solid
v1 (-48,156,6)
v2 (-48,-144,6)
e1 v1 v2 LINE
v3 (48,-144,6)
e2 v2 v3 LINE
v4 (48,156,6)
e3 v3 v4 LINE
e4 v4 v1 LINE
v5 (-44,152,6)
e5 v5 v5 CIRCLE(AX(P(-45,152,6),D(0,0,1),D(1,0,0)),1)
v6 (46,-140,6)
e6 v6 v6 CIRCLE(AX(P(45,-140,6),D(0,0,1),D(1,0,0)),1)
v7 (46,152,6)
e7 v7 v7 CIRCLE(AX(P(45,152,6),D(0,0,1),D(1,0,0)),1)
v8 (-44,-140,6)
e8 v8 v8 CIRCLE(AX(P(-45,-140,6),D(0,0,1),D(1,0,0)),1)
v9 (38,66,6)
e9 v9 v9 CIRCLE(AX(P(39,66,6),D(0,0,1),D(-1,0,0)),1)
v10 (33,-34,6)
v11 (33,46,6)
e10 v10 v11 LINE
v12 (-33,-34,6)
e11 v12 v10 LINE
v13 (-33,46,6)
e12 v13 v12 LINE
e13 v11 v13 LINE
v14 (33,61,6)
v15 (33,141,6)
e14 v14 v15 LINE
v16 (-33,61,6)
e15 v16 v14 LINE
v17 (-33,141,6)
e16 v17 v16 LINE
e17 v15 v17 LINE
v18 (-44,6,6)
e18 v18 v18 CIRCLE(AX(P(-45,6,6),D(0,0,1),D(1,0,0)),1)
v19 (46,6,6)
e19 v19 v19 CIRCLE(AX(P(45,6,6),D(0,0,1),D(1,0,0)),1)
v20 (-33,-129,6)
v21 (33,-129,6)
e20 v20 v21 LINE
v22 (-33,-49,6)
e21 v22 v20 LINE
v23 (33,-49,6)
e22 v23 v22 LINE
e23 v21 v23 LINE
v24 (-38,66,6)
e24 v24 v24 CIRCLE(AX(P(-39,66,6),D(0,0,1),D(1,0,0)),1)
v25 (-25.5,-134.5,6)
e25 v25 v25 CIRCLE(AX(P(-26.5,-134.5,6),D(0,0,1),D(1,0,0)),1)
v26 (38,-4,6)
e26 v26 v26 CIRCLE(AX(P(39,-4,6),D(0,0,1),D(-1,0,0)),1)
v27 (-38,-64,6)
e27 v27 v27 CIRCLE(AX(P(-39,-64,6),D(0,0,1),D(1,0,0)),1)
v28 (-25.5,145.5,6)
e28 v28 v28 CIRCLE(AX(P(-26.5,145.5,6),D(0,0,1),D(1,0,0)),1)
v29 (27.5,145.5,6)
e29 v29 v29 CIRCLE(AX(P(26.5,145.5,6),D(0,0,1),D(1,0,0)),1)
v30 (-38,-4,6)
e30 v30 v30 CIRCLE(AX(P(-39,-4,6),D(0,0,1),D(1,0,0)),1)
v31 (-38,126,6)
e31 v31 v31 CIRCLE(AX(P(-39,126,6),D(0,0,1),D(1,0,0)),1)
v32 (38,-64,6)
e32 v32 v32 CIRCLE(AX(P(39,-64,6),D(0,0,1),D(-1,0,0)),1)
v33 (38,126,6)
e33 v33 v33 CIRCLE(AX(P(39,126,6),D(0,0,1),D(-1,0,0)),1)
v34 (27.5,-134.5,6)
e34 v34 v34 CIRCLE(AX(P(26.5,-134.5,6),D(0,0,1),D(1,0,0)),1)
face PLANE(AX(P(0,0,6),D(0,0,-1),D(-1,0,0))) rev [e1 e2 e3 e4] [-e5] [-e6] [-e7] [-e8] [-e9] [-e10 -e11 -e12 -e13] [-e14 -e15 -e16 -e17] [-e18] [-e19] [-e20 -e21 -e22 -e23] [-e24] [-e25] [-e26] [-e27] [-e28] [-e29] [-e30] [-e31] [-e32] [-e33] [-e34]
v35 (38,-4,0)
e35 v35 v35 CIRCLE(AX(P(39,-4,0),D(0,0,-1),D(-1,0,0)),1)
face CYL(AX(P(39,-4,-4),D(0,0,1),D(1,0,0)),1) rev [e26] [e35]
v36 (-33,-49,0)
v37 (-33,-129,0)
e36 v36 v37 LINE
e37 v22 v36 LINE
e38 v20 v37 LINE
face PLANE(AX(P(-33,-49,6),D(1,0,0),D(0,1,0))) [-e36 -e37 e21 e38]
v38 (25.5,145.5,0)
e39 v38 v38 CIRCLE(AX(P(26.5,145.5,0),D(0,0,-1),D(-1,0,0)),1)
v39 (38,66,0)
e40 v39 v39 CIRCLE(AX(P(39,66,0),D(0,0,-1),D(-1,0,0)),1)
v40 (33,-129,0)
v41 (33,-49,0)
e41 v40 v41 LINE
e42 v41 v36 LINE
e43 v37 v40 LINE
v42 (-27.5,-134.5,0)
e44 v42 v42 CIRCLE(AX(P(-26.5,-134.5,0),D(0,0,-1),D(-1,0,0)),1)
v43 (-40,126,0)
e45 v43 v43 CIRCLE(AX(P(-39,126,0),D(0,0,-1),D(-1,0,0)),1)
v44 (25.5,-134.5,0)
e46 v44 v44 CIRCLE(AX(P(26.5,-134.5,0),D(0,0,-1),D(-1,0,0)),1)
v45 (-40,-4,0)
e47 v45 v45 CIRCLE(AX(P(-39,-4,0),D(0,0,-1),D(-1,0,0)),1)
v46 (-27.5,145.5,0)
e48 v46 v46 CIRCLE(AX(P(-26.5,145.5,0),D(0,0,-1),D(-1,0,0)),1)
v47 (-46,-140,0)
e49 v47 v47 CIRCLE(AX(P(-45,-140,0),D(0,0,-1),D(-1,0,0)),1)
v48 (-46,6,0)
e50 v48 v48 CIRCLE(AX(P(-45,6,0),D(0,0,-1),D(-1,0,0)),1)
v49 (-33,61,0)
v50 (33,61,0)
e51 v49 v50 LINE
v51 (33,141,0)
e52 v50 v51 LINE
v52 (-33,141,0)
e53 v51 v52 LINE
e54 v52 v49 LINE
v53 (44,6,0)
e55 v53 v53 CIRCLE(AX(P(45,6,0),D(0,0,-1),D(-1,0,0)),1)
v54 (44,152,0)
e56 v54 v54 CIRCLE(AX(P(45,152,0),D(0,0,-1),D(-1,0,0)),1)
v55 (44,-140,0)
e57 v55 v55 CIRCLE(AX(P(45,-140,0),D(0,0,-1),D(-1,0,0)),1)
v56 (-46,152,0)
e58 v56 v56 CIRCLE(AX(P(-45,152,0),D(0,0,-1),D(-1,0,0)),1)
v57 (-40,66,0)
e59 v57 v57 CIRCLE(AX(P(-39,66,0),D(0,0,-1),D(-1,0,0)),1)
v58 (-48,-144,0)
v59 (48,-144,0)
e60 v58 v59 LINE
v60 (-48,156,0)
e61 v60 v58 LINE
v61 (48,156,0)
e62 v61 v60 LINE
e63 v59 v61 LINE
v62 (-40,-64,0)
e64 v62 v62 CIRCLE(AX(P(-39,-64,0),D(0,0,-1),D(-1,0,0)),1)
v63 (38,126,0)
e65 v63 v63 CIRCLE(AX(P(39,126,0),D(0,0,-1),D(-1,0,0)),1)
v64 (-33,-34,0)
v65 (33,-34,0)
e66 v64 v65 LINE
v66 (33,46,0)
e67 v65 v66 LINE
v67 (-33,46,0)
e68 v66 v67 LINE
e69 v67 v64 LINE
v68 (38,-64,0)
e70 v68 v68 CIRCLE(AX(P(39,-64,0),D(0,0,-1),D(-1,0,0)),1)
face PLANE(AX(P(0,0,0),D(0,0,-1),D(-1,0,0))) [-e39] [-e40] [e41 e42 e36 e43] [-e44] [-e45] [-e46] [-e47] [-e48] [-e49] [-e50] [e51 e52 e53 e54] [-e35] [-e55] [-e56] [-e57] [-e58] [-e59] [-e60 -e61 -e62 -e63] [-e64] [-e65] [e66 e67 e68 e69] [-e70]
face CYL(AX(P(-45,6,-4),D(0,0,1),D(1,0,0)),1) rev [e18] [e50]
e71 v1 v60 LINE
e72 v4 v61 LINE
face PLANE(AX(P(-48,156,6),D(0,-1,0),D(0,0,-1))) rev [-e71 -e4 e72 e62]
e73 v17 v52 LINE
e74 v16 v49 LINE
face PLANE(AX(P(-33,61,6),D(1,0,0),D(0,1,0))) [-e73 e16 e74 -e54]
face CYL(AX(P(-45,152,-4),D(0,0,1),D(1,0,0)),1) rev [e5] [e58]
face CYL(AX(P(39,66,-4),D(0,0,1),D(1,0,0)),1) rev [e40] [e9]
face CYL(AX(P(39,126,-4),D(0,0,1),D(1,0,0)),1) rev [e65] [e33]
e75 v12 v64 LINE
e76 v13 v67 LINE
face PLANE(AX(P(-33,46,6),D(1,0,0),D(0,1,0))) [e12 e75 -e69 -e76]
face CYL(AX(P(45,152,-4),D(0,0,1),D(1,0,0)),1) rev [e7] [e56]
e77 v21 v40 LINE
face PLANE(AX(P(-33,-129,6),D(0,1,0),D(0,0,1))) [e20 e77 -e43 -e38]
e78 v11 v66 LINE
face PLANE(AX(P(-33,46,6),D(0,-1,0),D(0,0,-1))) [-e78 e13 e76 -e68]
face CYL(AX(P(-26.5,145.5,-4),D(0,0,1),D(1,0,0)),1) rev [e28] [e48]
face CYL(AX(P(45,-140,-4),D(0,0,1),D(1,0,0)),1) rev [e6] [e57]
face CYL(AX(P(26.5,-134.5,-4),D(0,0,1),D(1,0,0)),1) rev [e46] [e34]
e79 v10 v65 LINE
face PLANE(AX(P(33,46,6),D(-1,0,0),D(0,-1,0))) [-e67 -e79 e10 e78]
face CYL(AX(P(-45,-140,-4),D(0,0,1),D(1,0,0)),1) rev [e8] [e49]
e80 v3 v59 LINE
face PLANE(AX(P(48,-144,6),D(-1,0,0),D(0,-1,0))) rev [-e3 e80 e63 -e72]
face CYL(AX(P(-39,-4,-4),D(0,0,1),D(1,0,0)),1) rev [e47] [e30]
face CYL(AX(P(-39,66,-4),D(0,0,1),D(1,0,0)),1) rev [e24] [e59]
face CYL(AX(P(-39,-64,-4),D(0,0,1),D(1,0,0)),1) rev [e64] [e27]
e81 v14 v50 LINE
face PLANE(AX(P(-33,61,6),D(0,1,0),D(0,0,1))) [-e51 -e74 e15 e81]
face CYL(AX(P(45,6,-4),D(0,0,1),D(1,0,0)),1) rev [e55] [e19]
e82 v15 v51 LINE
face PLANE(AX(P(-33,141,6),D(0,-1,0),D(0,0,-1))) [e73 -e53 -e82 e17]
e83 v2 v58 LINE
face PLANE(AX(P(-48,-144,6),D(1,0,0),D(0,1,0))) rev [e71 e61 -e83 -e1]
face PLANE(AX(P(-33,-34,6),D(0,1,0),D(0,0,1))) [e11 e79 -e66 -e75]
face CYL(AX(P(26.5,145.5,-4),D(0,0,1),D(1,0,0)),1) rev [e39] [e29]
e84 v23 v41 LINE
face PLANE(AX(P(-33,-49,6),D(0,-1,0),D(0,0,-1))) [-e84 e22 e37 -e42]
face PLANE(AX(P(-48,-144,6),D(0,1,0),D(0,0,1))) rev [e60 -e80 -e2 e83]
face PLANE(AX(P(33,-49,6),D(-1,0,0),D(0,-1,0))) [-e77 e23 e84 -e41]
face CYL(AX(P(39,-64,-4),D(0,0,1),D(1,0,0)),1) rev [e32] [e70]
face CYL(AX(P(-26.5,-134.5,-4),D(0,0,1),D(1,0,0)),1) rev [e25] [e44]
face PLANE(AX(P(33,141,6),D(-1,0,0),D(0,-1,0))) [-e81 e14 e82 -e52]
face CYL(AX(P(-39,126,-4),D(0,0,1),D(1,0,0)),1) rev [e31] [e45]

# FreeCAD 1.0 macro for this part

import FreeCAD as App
import Part
import Sketcher
from FreeCAD import Vector
Q = App.Units.Quantity

doc = App.newDocument("Part")
params = doc.addObject("Spreadsheet::Sheet", "Params")
for row, (alias, value) in enumerate([
    ("sketch1_width", "96 mm"),
    ("sketch1_width2", "66 mm"),
    ("sketch1_height", "300 mm"),
    ("sketch1_height2", "80 mm"),
    ("pad1_length", "6 mm"),
    ("sketch2_diameter", "2 mm"),
    ("pocket1_length", "10 mm"),
    ("sketch3_diameter", "2 mm"),
    ("pocket2_length", "10 mm"),
    ("sketch4_diameter", "2 mm"),
    ("pocket3_length", "10 mm"),
], start=1):
    params.set(f"A{row}", alias)
    params.set(f"B{row}", "=" + value)
    params.setAlias(f"B{row}", alias)

body = doc.addObject("PartDesign::Body", "Body")

# Sketch on XY plane
sketch1 = body.newObject("Sketcher::SketchObject", "Sketch")
sketch1.AttachmentSupport = (doc.getObject("XY_Plane"), [""])
sketch1.MapMode = "FlatFace"
sketch1.addGeometry([
    Part.LineSegment(Vector(-48, 156, 0), Vector(-48, -144, 0)),  # 0
    Part.LineSegment(Vector(-48, -144, 0), Vector(48, -144, 0)),  # 1
    Part.LineSegment(Vector(48, -144, 0), Vector(48, 156, 0)),  # 2
    Part.LineSegment(Vector(48, 156, 0), Vector(-48, 156, 0)),  # 3
    Part.LineSegment(Vector(33, -129, 0), Vector(-33, -129, 0)),  # 4
    Part.LineSegment(Vector(-33, -129, 0), Vector(-33, -49, 0)),  # 5
    Part.LineSegment(Vector(-33, -49, 0), Vector(33, -49, 0)),  # 6
    Part.LineSegment(Vector(33, -49, 0), Vector(33, -129, 0)),  # 7
    Part.LineSegment(Vector(33, -34, 0), Vector(-33, -34, 0)),  # 8
    Part.LineSegment(Vector(-33, -34, 0), Vector(-33, 46, 0)),  # 9
    Part.LineSegment(Vector(-33, 46, 0), Vector(33, 46, 0)),  # 10
    Part.LineSegment(Vector(33, 46, 0), Vector(33, -34, 0)),  # 11
    Part.LineSegment(Vector(33, 61, 0), Vector(-33, 61, 0)),  # 12
    Part.LineSegment(Vector(-33, 61, 0), Vector(-33, 141, 0)),  # 13
    Part.LineSegment(Vector(-33, 141, 0), Vector(33, 141, 0)),  # 14
    Part.LineSegment(Vector(33, 141, 0), Vector(33, 61, 0)),  # 15
], False)
sketch1.addConstraint([
    Sketcher.Constraint("Coincident", 0, 2, 1, 1),
    Sketcher.Constraint("Coincident", 1, 2, 2, 1),
    Sketcher.Constraint("Coincident", 2, 2, 3, 1),
    Sketcher.Constraint("Coincident", 3, 2, 0, 1),
    Sketcher.Constraint("Coincident", 4, 2, 5, 1),
    Sketcher.Constraint("Coincident", 5, 2, 6, 1),
    Sketcher.Constraint("Coincident", 6, 2, 7, 1),
    Sketcher.Constraint("Coincident", 7, 2, 4, 1),
    Sketcher.Constraint("Coincident", 8, 2, 9, 1),
    Sketcher.Constraint("Coincident", 9, 2, 10, 1),
    Sketcher.Constraint("Coincident", 10, 2, 11, 1),
    Sketcher.Constraint("Coincident", 11, 2, 8, 1),
    Sketcher.Constraint("Coincident", 12, 2, 13, 1),
    Sketcher.Constraint("Coincident", 13, 2, 14, 1),
    Sketcher.Constraint("Coincident", 14, 2, 15, 1),
    Sketcher.Constraint("Coincident", 15, 2, 12, 1),
    Sketcher.Constraint("Vertical", 0),
    Sketcher.Constraint("Horizontal", 1),
    Sketcher.Constraint("Vertical", 2),
    Sketcher.Constraint("Horizontal", 3),
    Sketcher.Constraint("Horizontal", 4),
    Sketcher.Constraint("Vertical", 5),
    Sketcher.Constraint("Horizontal", 6),
    Sketcher.Constraint("Vertical", 7),
    Sketcher.Constraint("Horizontal", 8),
    Sketcher.Constraint("Vertical", 9),
    Sketcher.Constraint("Horizontal", 10),
    Sketcher.Constraint("Vertical", 11),
    Sketcher.Constraint("Horizontal", 12),
    Sketcher.Constraint("Vertical", 13),
    Sketcher.Constraint("Horizontal", 14),
    Sketcher.Constraint("Vertical", 15),
    Sketcher.Constraint("Vertical", 5, 2, 8, 2),
    Sketcher.Constraint("Vertical", 7, 2, 10, 2),
    Sketcher.Constraint("Vertical", 9, 2, 12, 2),
    Sketcher.Constraint("Vertical", 11, 2, 14, 2),
    Sketcher.Constraint("Equal", 7, 9),
    Sketcher.Constraint("Equal", 11, 13),
    Sketcher.Constraint("DistanceX", 1, 1, 1, 2, Q("96 mm")),
    Sketcher.Constraint("DistanceX", 4, 2, 4, 1, Q("66 mm")),
    Sketcher.Constraint("DistanceY", 0, 2, 0, 1, Q("300 mm")),
    Sketcher.Constraint("DistanceY", 5, 1, 5, 2, Q("80 mm")),
    Sketcher.Constraint("DistanceX", 0, 2, -1, 1, Q("48 mm")),
    Sketcher.Constraint("DistanceY", 0, 2, -1, 1, Q("144 mm")),
    Sketcher.Constraint("DistanceX", 4, 2, -1, 1, Q("33 mm")),
    Sketcher.Constraint("DistanceY", 4, 2, -1, 1, Q("129 mm")),
    Sketcher.Constraint("DistanceY", 8, 2, -1, 1, Q("34 mm")),
    Sketcher.Constraint("DistanceY", -1, 1, 12, 2, Q("61 mm")),
])
sketch1.setExpression("Constraints[38]", "Params.sketch1_width")
sketch1.setExpression("Constraints[39]", "Params.sketch1_width2")
sketch1.setExpression("Constraints[40]", "Params.sketch1_height")
sketch1.setExpression("Constraints[41]", "Params.sketch1_height2")
pad1 = body.newObject("PartDesign::Pad", "Pad")
pad1.Profile = sketch1
pad1.setExpression("Length", "Params.pad1_length")

# Sketch on XY plane
sketch2 = body.newObject("Sketcher::SketchObject", "Sketch001")
sketch2.AttachmentSupport = (doc.getObject("XY_Plane"), [""])
sketch2.MapMode = "FlatFace"
sketch2.AttachmentOffset = App.Placement(Vector(0, 0, 6), App.Rotation())
sketch2.addGeometry([
    Part.Circle(Vector(-39, 126, 0), Vector(0, 0, 1), 1),  # 0
    Part.Circle(Vector(-39, -4, 0), Vector(0, 0, 1), 1),  # 1
    Part.Circle(Vector(-39, 66, 0), Vector(0, 0, 1), 1),  # 2
    Part.Circle(Vector(-39, -64, 0), Vector(0, 0, 1), 1),  # 3
    Part.Circle(Vector(39, -64, 0), Vector(0, 0, 1), 1),  # 4
    Part.Circle(Vector(39, -4, 0), Vector(0, 0, 1), 1),  # 5
    Part.Circle(Vector(39, 66, 0), Vector(0, 0, 1), 1),  # 6
    Part.Circle(Vector(39, 126, 0), Vector(0, 0, 1), 1),  # 7
], False)
sketch2.addConstraint([
    Sketcher.Constraint("Equal", 0, 1),
    Sketcher.Constraint("Equal", 1, 2),
    Sketcher.Constraint("Equal", 2, 3),
    Sketcher.Constraint("Equal", 3, 4),
    Sketcher.Constraint("Equal", 4, 5),
    Sketcher.Constraint("Equal", 5, 6),
    Sketcher.Constraint("Equal", 6, 7),
    Sketcher.Constraint("Symmetric", 3, 3, 4, 3, -2),
    Sketcher.Constraint("Symmetric", 1, 3, 5, 3, -2),
    Sketcher.Constraint("Symmetric", 2, 3, 6, 3, -2),
    Sketcher.Constraint("Symmetric", 0, 3, 7, 3, -2),
    Sketcher.Constraint("Vertical", 0, 3, 1, 3),
    Sketcher.Constraint("Vertical", 1, 3, 2, 3),
    Sketcher.Constraint("Vertical", 2, 3, 3, 3),
    Sketcher.Constraint("Diameter", 0, Q("2 mm")),
    Sketcher.Constraint("DistanceX", 0, 3, -1, 1, Q("39 mm")),
    Sketcher.Constraint("DistanceY", -1, 1, 0, 3, Q("126 mm")),
    Sketcher.Constraint("DistanceY", 1, 3, -1, 1, Q("4 mm")),
    Sketcher.Constraint("DistanceY", -1, 1, 2, 3, Q("66 mm")),
    Sketcher.Constraint("DistanceY", 3, 3, -1, 1, Q("64 mm")),
])
sketch2.setExpression("Constraints[14]", "Params.sketch2_diameter")
pocket1 = body.newObject("PartDesign::Pocket", "Pocket")
pocket1.Profile = sketch2
pocket1.setExpression("Length", "Params.pocket1_length")

# Sketch on XY plane
sketch3 = body.newObject("Sketcher::SketchObject", "Sketch002")
sketch3.AttachmentSupport = (doc.getObject("XY_Plane"), [""])
sketch3.MapMode = "FlatFace"
sketch3.AttachmentOffset = App.Placement(Vector(0, 0, 6), App.Rotation())
sketch3.addGeometry([
    Part.Circle(Vector(-26.5, -134.5, 0), Vector(0, 0, 1), 1),
    Part.Circle(Vector(26.5, -134.5, 0), Vector(0, 0, 1), 1),
    Part.Circle(Vector(-26.5, 145.5, 0), Vector(0, 0, 1), 1),
    Part.Circle(Vector(26.5, 145.5, 0), Vector(0, 0, 1), 1),
], False)
sketch3.addConstraint([
    Sketcher.Constraint("Equal", 0, 1),
    Sketcher.Constraint("Equal", 1, 2),
    Sketcher.Constraint("Equal", 2, 3),
    Sketcher.Constraint("Symmetric", 0, 3, 1, 3, -2),
    Sketcher.Constraint("Symmetric", 2, 3, 3, 3, -2),
    Sketcher.Constraint("Vertical", 0, 3, 2, 3),
    Sketcher.Constraint("Diameter", 0, Q("2 mm")),
    Sketcher.Constraint("DistanceX", 0, 3, 1, 3, Q("53 mm")),
    Sketcher.Constraint("DistanceY", 0, 3, 2, 3, Q("280 mm")),
    Sketcher.Constraint("DistanceY", 0, 3, -1, 1, Q("134.5 mm")),
])
sketch3.setExpression("Constraints[6]", "Params.sketch3_diameter")
pocket2 = body.newObject("PartDesign::Pocket", "Pocket001")
pocket2.Profile = sketch3
pocket2.setExpression("Length", "Params.pocket2_length")

# Sketch on XY plane
sketch4 = body.newObject("Sketcher::SketchObject", "Sketch003")
sketch4.AttachmentSupport = (doc.getObject("XY_Plane"), [""])
sketch4.MapMode = "FlatFace"
sketch4.AttachmentOffset = App.Placement(Vector(0, 0, 6), App.Rotation())
sketch4.addGeometry([
    Part.Circle(Vector(45, -140, 0), Vector(0, 0, 1), 1),  # 0
    Part.Circle(Vector(-45, -140, 0), Vector(0, 0, 1), 1),  # 1
    Part.Circle(Vector(45, 152, 0), Vector(0, 0, 1), 1),  # 2
    Part.Circle(Vector(-45, 152, 0), Vector(0, 0, 1), 1),  # 3
    Part.Circle(Vector(45, 6, 0), Vector(0, 0, 1), 1),  # 4
    Part.Circle(Vector(-45, 6, 0), Vector(0, 0, 1), 1),  # 5
], False)
sketch4.addConstraint([
    Sketcher.Constraint("Equal", 0, 1),
    Sketcher.Constraint("Equal", 1, 2),
    Sketcher.Constraint("Equal", 2, 3),
    Sketcher.Constraint("Equal", 3, 4),
    Sketcher.Constraint("Equal", 4, 5),
    Sketcher.Constraint("Symmetric", 0, 3, 1, 3, -2),
    Sketcher.Constraint("Symmetric", 2, 3, 3, 3, -2),
    Sketcher.Constraint("Symmetric", 4, 3, 5, 3, -2),
    Sketcher.Constraint("Vertical", 0, 3, 2, 3),
    Sketcher.Constraint("Vertical", 2, 3, 4, 3),
    Sketcher.Constraint("Diameter", 0, Q("2 mm")),
    Sketcher.Constraint("DistanceX", -1, 1, 0, 3, Q("45 mm")),
    Sketcher.Constraint("DistanceY", 0, 3, -1, 1, Q("140 mm")),
    Sketcher.Constraint("DistanceY", -1, 1, 2, 3, Q("152 mm")),
    Sketcher.Constraint("DistanceY", -1, 1, 4, 3, Q("6 mm")),
])
sketch4.setExpression("Constraints[10]", "Params.sketch4_diameter")
pocket3 = body.newObject("PartDesign::Pocket", "Pocket002")
pocket3.Profile = sketch4
pocket3.setExpression("Length", "Params.pocket3_length")

doc.recompute()
